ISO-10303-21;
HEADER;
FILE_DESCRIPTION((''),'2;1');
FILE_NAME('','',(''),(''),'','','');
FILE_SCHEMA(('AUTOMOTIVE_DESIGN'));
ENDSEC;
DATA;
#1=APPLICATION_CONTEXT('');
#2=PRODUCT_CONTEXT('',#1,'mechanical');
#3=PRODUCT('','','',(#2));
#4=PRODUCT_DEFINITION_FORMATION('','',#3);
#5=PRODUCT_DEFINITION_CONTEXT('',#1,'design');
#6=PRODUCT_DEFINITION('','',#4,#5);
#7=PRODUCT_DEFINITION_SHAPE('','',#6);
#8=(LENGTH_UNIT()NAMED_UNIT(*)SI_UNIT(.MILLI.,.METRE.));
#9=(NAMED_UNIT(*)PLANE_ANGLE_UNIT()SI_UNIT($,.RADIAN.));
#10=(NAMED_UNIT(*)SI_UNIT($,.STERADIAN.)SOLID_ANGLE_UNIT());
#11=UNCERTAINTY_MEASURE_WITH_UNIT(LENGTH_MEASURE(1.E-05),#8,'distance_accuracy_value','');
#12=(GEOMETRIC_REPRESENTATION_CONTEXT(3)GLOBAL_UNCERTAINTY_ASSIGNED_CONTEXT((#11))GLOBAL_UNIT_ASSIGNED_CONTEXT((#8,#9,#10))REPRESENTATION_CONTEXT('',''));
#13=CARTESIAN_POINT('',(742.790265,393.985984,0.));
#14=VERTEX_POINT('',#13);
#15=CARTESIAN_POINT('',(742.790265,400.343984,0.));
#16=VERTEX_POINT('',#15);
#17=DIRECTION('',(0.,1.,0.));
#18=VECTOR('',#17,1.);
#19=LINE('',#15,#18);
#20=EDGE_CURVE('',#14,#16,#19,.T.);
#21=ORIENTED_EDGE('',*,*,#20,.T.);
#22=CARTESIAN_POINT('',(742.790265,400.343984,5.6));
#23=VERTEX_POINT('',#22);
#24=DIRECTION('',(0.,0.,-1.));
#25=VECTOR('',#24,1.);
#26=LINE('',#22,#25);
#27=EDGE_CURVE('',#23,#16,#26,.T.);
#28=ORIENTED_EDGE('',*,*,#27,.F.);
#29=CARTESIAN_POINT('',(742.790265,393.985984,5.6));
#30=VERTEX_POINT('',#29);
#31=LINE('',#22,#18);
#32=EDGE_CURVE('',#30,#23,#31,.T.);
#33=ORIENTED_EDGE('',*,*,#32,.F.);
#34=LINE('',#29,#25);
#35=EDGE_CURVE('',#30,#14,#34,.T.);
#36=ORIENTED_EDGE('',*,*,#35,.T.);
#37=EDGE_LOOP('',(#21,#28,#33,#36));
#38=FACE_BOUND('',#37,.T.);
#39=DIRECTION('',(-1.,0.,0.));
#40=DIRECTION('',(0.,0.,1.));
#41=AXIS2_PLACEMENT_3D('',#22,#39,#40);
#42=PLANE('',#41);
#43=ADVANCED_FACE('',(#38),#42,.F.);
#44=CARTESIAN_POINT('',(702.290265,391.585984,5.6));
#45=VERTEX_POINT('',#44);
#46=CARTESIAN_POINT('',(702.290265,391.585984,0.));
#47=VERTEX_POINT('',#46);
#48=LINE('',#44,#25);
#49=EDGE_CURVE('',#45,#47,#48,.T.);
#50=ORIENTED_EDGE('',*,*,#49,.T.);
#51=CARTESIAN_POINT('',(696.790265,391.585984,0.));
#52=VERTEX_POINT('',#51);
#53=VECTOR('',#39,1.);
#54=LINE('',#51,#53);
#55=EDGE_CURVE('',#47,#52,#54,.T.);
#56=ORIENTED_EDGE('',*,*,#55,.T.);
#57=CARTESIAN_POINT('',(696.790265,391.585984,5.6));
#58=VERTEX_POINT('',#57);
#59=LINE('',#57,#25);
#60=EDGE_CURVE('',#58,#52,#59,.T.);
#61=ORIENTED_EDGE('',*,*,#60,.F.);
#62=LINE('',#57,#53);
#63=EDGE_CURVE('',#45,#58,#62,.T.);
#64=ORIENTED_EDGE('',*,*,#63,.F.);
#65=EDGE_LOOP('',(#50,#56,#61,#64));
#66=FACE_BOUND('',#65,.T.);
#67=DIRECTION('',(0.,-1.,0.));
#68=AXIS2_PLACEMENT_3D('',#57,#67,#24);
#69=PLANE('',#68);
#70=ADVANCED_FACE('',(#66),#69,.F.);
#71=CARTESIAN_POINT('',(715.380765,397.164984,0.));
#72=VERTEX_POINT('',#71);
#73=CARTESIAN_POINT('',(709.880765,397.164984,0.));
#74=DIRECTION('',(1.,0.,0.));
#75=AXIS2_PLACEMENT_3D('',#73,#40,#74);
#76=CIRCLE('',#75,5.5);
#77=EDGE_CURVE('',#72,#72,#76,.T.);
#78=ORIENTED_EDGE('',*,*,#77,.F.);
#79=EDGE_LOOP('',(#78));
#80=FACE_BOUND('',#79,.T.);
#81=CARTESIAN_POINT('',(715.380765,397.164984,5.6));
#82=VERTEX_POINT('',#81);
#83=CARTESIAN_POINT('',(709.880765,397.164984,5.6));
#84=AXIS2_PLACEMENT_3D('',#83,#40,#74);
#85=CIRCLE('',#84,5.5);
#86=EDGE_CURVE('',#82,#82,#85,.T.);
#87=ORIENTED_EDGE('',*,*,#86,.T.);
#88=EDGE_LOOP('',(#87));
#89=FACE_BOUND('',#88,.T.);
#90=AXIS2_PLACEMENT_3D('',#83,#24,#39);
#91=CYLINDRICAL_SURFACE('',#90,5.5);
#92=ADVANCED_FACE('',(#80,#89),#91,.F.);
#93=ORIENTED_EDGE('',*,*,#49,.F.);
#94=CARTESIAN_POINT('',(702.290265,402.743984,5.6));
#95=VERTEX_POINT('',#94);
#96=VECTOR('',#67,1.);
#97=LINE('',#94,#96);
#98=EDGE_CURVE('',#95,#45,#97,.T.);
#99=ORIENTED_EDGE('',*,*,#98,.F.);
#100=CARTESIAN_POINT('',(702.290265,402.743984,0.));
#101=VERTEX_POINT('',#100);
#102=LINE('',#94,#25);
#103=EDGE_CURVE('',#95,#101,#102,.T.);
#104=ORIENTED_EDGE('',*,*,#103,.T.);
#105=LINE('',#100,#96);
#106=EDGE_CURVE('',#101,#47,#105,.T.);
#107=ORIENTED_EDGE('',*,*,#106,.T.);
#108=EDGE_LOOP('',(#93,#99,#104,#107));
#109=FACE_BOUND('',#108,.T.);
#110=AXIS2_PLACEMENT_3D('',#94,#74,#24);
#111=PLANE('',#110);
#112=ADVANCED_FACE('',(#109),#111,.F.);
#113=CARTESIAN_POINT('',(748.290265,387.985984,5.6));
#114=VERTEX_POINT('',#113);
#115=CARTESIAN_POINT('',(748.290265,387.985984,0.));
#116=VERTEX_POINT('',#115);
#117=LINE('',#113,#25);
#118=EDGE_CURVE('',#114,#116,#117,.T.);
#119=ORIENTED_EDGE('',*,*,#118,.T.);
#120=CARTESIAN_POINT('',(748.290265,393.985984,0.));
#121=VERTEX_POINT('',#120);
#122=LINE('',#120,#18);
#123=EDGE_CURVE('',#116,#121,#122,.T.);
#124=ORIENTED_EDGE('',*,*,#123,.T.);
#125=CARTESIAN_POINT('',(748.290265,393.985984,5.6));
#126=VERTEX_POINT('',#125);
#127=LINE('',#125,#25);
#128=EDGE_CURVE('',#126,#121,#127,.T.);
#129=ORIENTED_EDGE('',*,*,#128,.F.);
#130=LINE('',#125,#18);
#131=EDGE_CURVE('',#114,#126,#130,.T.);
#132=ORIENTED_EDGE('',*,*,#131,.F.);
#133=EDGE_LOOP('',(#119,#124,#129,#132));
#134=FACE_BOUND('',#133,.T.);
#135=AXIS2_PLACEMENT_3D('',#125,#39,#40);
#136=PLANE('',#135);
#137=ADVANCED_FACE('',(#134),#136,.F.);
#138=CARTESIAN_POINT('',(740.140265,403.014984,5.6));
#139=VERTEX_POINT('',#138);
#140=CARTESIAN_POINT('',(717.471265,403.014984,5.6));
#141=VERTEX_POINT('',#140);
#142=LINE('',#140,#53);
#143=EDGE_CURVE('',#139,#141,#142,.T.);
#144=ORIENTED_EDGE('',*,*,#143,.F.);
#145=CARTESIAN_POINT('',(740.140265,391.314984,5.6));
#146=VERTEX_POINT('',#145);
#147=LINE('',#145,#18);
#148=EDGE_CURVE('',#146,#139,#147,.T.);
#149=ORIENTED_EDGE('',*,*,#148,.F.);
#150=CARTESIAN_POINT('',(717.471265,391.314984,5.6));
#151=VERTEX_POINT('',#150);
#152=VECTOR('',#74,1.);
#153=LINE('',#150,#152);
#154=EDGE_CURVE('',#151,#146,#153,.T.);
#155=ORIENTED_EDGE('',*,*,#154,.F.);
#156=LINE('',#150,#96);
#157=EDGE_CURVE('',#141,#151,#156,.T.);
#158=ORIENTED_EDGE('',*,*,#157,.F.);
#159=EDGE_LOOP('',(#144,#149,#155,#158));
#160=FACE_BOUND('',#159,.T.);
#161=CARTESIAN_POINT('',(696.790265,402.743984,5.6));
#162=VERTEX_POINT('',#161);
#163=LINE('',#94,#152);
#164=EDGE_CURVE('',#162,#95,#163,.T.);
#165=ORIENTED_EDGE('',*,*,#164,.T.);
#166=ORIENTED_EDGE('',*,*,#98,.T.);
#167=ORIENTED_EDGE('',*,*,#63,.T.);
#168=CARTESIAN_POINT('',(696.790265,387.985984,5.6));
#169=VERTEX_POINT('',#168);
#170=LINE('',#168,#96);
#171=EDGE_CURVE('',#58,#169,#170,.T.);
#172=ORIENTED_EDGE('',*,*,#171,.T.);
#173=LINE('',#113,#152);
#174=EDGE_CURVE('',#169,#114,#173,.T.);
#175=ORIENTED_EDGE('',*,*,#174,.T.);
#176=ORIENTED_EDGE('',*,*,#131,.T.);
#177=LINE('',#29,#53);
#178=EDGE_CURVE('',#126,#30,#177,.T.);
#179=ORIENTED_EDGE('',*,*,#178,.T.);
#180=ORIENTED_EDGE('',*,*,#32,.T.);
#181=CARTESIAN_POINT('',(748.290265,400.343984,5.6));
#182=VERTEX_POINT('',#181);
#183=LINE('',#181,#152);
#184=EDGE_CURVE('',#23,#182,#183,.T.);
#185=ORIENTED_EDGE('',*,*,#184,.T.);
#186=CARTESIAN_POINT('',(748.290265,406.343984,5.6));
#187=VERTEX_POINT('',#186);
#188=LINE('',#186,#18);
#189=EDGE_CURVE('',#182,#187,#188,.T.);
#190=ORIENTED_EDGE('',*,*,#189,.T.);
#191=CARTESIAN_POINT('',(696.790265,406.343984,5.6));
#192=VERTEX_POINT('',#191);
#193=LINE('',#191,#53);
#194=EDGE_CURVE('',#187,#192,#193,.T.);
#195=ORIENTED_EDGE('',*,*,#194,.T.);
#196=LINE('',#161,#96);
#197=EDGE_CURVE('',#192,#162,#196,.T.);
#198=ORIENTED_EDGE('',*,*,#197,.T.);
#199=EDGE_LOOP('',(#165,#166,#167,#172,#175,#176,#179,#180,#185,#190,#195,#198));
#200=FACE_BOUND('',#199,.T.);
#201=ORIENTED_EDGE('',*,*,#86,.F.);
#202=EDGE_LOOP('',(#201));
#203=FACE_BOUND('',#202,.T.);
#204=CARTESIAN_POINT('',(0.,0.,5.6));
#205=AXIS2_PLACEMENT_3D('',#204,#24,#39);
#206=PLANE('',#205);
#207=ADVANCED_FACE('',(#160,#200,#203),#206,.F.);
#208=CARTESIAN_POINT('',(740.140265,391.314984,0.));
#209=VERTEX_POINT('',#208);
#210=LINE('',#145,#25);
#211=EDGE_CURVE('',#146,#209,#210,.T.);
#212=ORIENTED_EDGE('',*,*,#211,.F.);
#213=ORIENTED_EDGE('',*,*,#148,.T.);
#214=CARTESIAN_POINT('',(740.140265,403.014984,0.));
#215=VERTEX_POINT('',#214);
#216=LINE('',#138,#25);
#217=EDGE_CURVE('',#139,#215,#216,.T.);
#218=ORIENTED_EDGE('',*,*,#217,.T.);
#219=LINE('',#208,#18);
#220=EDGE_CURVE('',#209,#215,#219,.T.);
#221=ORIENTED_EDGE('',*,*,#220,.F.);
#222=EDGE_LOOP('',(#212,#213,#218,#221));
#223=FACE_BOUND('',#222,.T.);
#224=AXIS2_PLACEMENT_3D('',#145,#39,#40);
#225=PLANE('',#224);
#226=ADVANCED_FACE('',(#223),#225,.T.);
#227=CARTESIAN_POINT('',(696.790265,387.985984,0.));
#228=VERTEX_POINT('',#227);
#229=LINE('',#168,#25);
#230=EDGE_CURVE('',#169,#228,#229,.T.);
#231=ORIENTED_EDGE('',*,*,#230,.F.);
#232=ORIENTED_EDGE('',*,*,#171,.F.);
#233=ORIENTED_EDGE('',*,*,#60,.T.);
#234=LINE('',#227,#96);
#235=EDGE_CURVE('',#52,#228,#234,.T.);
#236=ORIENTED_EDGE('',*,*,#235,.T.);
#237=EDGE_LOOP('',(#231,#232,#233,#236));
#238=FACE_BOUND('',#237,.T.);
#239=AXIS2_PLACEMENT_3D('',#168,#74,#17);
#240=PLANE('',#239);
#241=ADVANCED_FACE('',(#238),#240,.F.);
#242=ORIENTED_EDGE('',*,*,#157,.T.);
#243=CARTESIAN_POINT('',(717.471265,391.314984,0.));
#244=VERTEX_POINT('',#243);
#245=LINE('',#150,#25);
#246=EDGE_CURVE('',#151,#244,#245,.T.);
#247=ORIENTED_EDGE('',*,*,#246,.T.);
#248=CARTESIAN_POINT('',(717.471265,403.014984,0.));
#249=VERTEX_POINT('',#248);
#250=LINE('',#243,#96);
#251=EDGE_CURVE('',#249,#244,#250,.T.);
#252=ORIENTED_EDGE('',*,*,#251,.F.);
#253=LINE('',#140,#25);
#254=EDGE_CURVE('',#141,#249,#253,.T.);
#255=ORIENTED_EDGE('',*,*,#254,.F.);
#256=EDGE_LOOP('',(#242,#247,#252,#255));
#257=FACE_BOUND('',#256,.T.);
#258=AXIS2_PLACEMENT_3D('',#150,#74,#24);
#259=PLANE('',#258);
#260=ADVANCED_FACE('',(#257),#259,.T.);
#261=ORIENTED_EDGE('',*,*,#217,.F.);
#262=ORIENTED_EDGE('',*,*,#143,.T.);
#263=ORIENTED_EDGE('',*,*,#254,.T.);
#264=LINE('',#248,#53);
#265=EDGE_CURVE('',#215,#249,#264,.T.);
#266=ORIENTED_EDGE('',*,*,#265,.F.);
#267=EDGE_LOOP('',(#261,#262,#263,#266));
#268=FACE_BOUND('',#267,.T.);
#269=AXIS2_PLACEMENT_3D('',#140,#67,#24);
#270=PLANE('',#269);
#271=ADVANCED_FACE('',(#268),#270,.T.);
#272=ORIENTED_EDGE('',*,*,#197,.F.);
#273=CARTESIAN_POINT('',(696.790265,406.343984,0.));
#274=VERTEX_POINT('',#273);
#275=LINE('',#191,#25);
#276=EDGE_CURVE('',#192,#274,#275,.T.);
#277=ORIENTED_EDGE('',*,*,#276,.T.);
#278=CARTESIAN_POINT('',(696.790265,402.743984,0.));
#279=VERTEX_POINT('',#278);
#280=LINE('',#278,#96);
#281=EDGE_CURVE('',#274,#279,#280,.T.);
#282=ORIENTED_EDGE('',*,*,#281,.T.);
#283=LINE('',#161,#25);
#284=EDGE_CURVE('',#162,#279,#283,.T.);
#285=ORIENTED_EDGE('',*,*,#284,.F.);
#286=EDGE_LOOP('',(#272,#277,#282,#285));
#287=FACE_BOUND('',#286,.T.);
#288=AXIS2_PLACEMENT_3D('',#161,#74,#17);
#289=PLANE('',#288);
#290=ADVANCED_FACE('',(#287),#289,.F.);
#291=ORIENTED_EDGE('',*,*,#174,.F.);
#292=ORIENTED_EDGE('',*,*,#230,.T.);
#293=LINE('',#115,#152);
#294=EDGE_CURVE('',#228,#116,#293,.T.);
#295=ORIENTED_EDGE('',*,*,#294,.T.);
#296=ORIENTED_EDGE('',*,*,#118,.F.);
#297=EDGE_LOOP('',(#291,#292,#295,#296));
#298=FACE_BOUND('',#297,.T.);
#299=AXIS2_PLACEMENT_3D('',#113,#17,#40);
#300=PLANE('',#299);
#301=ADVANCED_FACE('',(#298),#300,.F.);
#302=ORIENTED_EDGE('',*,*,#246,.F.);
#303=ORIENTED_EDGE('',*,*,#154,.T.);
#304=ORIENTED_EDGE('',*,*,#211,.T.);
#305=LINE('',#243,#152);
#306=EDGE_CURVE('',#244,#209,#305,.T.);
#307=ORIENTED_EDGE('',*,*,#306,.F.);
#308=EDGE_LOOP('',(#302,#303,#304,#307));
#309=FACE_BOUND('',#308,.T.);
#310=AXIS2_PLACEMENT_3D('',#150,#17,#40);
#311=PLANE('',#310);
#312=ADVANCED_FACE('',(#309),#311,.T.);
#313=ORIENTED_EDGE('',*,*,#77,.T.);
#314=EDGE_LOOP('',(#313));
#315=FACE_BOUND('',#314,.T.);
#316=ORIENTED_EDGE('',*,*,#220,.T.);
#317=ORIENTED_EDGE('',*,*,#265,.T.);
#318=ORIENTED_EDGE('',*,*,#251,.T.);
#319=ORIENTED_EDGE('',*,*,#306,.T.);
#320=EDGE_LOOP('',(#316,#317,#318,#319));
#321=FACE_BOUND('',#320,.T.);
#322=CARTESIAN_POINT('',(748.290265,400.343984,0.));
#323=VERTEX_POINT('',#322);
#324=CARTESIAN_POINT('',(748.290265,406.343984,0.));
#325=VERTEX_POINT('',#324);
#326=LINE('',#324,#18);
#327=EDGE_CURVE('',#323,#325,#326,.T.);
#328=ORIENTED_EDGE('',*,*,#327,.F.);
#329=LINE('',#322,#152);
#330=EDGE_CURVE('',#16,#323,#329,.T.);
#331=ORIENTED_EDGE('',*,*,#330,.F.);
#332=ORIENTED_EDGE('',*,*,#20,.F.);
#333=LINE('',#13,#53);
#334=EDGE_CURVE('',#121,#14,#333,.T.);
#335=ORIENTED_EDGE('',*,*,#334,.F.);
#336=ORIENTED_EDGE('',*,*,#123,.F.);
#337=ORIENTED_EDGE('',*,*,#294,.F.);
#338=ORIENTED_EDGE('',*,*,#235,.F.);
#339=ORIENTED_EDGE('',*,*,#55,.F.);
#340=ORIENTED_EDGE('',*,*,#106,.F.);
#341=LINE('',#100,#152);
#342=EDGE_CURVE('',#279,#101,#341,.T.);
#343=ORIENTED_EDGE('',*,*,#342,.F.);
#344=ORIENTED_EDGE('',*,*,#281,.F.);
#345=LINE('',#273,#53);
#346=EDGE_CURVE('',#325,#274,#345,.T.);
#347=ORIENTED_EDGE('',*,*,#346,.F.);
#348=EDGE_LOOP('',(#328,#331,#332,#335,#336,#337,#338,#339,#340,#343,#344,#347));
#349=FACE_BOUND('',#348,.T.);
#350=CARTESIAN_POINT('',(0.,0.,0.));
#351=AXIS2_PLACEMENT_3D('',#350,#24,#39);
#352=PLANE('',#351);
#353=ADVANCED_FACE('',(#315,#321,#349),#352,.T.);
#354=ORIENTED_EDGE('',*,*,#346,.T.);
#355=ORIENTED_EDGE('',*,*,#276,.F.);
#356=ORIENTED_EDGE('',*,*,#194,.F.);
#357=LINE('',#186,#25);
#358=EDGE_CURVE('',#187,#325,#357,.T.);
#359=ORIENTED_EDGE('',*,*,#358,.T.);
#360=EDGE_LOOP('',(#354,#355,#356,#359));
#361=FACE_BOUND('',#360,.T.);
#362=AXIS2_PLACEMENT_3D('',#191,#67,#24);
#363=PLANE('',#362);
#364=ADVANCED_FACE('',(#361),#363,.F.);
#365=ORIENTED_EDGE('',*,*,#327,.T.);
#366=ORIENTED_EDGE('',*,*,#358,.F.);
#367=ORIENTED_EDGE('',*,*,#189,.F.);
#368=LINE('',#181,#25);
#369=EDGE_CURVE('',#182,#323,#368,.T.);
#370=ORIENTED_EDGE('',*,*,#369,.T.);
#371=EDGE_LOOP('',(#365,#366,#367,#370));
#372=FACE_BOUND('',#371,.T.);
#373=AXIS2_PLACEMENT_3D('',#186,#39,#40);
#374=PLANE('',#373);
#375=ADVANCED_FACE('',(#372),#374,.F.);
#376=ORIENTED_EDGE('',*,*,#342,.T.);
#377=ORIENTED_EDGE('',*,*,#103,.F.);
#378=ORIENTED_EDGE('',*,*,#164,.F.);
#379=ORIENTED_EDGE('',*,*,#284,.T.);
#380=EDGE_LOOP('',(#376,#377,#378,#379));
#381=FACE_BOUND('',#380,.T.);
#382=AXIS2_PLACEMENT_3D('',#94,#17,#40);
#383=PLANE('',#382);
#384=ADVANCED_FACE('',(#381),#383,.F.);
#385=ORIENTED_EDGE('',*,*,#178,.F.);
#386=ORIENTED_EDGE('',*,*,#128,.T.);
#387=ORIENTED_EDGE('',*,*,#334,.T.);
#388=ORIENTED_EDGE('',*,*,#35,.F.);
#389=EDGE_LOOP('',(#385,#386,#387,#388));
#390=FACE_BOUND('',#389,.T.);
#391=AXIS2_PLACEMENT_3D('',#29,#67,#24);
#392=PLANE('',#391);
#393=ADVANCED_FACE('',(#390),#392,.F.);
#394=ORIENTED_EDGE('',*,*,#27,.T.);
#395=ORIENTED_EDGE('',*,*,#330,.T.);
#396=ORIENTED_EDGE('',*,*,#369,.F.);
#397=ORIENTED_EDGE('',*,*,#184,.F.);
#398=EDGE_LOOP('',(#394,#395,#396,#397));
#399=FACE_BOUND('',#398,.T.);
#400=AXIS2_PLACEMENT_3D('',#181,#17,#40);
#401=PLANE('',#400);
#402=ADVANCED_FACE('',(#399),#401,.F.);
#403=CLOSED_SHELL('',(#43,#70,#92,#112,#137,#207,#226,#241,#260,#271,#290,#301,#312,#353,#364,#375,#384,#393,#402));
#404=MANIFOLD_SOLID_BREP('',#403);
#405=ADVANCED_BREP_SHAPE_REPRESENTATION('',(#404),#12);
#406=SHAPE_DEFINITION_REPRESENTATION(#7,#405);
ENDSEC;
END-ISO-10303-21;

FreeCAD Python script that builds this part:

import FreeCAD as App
import Part
import Sketcher

V = App.Vector

doc = App.newDocument("Part")
params = doc.addObject("Spreadsheet::Sheet", "Params")
for row, (alias, value) in enumerate([
    ("sketch1_diameter", "11 mm"),
    ("sketch1_height", "6 mm"),
    ("sketch1_width", "5.5 mm"),
    ("sketch1_width2", "51.5 mm"),
    ("sketch1_height2", "3.6 mm"),
    ("pad1_length", "5.6 mm"),
], start=1):
    params.set(f"A{row}", alias)
    params.set(f"B{row}", "=" + value)
    params.setAlias(f"B{row}", alias)

body = doc.addObject("PartDesign::Body", "Body")

# Sketch on XY plane
sketch1 = doc.addObject("Sketcher::SketchObject", "Sketch")
body.addObject(sketch1)
sketch1.AttachmentSupport = (doc.XY_Plane, [""])
sketch1.MapMode = "FlatFace"
sketch1.addGeometry([
    Part.LineSegment(V(702.3, 402.7, 0), V(702.3, 391.6, 0)),  # 0
    Part.LineSegment(V(702.3, 391.6, 0), V(696.8, 391.6, 0)),  # 1
    Part.LineSegment(V(696.8, 391.6, 0), V(696.8, 388, 0)),  # 2
    Part.LineSegment(V(696.8, 388, 0), V(748.3, 388, 0)),  # 3
    Part.LineSegment(V(748.3, 388, 0), V(748.3, 394, 0)),  # 4
    Part.LineSegment(V(748.3, 394, 0), V(742.8, 394, 0)),  # 5
    Part.LineSegment(V(742.8, 394, 0), V(742.8, 400.3, 0)),  # 6
    Part.LineSegment(V(742.8, 400.3, 0), V(748.3, 400.3, 0)),  # 7
    Part.LineSegment(V(748.3, 400.3, 0), V(748.3, 406.3, 0)),  # 8
    Part.LineSegment(V(748.3, 406.3, 0), V(696.8, 406.3, 0)),  # 9
    Part.LineSegment(V(696.8, 406.3, 0), V(696.8, 402.7, 0)),  # 10
    Part.LineSegment(V(696.8, 402.7, 0), V(702.3, 402.7, 0)),  # 11
    Part.Circle(V(709.9, 397.2, 0), V(0, 0, 1), 5.5),  # 12
    Part.LineSegment(V(740.1, 391.3, 0), V(717.5, 391.3, 0)),  # 13
    Part.LineSegment(V(717.5, 391.3, 0), V(717.5, 403, 0)),  # 14
    Part.LineSegment(V(717.5, 403, 0), V(740.1, 403, 0)),  # 15
    Part.LineSegment(V(740.1, 403, 0), V(740.1, 391.3, 0)),  # 16
], False)
sketch1.addConstraint([
    Sketcher.Constraint("Coincident", 0, 2, 1, 1),
    Sketcher.Constraint("Coincident", 1, 2, 2, 1),
    Sketcher.Constraint("Coincident", 2, 2, 3, 1),
    Sketcher.Constraint("Coincident", 3, 2, 4, 1),
    Sketcher.Constraint("Coincident", 4, 2, 5, 1),
    Sketcher.Constraint("Coincident", 5, 2, 6, 1),
    Sketcher.Constraint("Coincident", 6, 2, 7, 1),
    Sketcher.Constraint("Coincident", 7, 2, 8, 1),
    Sketcher.Constraint("Coincident", 8, 2, 9, 1),
    Sketcher.Constraint("Coincident", 9, 2, 10, 1),
    Sketcher.Constraint("Coincident", 10, 2, 11, 1),
    Sketcher.Constraint("Coincident", 11, 2, 0, 1),
    Sketcher.Constraint("Coincident", 13, 2, 14, 1),
    Sketcher.Constraint("Coincident", 14, 2, 15, 1),
    Sketcher.Constraint("Coincident", 15, 2, 16, 1),
    Sketcher.Constraint("Coincident", 16, 2, 13, 1),
    Sketcher.Constraint("Vertical", 0),
    Sketcher.Constraint("Horizontal", 1),
    Sketcher.Constraint("Vertical", 2),
    Sketcher.Constraint("Horizontal", 3),
    Sketcher.Constraint("Vertical", 4),
    Sketcher.Constraint("Horizontal", 5),
    Sketcher.Constraint("Vertical", 6),
    Sketcher.Constraint("Horizontal", 7),
    Sketcher.Constraint("Vertical", 8),
    Sketcher.Constraint("Horizontal", 9),
    Sketcher.Constraint("Vertical", 10),
    Sketcher.Constraint("Horizontal", 11),
    Sketcher.Constraint("Horizontal", 13),
    Sketcher.Constraint("Vertical", 14),
    Sketcher.Constraint("Horizontal", 15),
    Sketcher.Constraint("Vertical", 16),
    Sketcher.Constraint("Vertical", 4, 2, 7, 2),
    Sketcher.Constraint("Vertical", 2, 2, 9, 2),
    Sketcher.Constraint("Equal", 1, 5),
    Sketcher.Constraint("Equal", 4, 8),
    Sketcher.Constraint("Equal", 2, 10),
    Sketcher.Constraint("Diameter", 12, 11.0),
    Sketcher.Constraint("DistanceY", 4, 1, 4, 2, 6.0),
    Sketcher.Constraint("DistanceX", 1, 2, 1, 1, 5.5),
    Sketcher.Constraint("DistanceX", 3, 1, 3, 2, 51.5),
    Sketcher.Constraint("DistanceY", 2, 2, 2, 1, 3.6),
    Sketcher.Constraint("DistanceY", 14, 1, 14, 2, 11.7),
    Sketcher.Constraint("DistanceX", 13, 2, 13, 1, 22.669),
    Sketcher.Constraint("DistanceY", 0, 2, 0, 1, 11.158),
    Sketcher.Constraint("DistanceY", 13, 2, 12, 3, 5.85),
    Sketcher.Constraint("DistanceX", 15, 2, 6, 2, 2.65),
    Sketcher.Constraint("DistanceY", 0, 2, 12, 3, 5.579),
    Sketcher.Constraint("DistanceX", 0, 2, 12, 3, 7.5905),
    Sketcher.Constraint("DistanceX", -1, 1, 12, 3, 709.880765),
    Sketcher.Constraint("DistanceY", -1, 1, 12, 3, 397.164984),
])
sketch1.setExpression("Constraints[37]", "Params.sketch1_diameter")
sketch1.setExpression("Constraints[38]", "Params.sketch1_height")
sketch1.setExpression("Constraints[39]", "Params.sketch1_width")
sketch1.setExpression("Constraints[40]", "Params.sketch1_width2")
sketch1.setExpression("Constraints[41]", "Params.sketch1_height2")
pad1 = doc.addObject("PartDesign::Pad", "Pad")
body.addObject(pad1)
pad1.Profile = sketch1
pad1.setExpression("Length", "Params.pad1_length")

doc.recompute()
